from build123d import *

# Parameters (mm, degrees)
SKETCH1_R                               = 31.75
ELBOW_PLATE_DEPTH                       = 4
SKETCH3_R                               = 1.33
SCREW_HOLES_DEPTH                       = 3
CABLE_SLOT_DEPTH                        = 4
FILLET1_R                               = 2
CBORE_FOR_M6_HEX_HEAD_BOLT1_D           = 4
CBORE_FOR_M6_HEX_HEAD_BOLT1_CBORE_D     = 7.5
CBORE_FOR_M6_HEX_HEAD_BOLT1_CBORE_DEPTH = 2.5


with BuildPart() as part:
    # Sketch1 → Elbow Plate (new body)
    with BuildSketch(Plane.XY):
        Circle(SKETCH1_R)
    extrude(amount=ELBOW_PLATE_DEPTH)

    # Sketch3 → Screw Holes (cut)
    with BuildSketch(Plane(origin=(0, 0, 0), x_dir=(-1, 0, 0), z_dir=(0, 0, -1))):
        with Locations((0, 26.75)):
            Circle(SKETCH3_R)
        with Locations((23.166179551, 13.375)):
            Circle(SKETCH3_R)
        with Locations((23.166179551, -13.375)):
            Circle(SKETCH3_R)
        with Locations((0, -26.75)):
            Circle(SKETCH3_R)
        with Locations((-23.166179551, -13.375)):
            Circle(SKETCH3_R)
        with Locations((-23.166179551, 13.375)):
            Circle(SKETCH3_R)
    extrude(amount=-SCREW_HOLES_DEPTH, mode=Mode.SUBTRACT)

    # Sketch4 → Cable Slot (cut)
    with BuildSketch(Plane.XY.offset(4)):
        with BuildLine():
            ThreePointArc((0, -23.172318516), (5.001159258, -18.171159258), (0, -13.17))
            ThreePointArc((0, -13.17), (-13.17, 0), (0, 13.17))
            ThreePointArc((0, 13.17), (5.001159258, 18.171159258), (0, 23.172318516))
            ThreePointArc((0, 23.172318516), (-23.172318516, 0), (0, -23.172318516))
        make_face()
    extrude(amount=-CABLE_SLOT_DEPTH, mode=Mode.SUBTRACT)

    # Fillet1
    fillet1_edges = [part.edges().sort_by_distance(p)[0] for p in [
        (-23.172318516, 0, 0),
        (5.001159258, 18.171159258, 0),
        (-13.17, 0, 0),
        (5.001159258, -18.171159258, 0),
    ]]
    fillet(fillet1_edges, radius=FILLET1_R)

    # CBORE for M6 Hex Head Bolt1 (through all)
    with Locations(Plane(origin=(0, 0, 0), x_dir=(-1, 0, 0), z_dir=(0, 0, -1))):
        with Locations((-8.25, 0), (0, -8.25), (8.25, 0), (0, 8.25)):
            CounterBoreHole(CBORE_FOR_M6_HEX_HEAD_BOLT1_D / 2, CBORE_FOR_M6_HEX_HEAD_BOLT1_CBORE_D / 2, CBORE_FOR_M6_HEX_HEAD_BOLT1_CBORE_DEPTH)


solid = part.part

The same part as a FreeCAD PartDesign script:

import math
import FreeCAD as App
import Part
import Sketcher

V = App.Vector
Q = App.Units.Quantity


def edges_at(feature, points):
    """Names of the edges that pass closest to the given points."""
    edges = feature.Shape.Edges
    near = lambda p: min(range(len(edges)), key=lambda i: edges[i].distToShape(Part.Vertex(*p))[0])
    return sorted({f"Edge{near(p) + 1}" for p in points})

doc = App.newDocument("Part")
body = doc.addObject("PartDesign::Body", "Body")

sketch1 = doc.addObject("Sketcher::SketchObject", "Sketch")
body.addObject(sketch1)
sketch1.AttachmentSupport = (doc.XY_Plane, [""])
sketch1.MapMode = "FlatFace"
sketch1.addGeometry(Part.Circle(V(0, 0, 0), V(0, 0, 1), 32), False)
sketch1.addConstraint([
    Sketcher.Constraint("Coincident", 0, 3, -1, 1),
    Sketcher.Constraint("Diameter", 0, Q("63.5 mm")),
])
pad1 = doc.addObject("PartDesign::Pad", "Pad")
body.addObject(pad1)
pad1.Profile = sketch1
pad1.Length = 4

sketch2 = doc.addObject("Sketcher::SketchObject", "Sketch001")
body.addObject(sketch2)
sketch2.AttachmentSupport = (doc.XY_Plane, [""])
sketch2.MapMode = "FlatFace"
sketch2.addGeometry([
    Part.Circle(V(0, 26.8, 0), V(0, 0, 1), 1.3),
    Part.Circle(V(-23.2, 13.4, 0), V(0, 0, 1), 1.3),
    Part.Circle(V(-23.2, -13.4, 0), V(0, 0, 1), 1.3),
    Part.Circle(V(0, -26.8, 0), V(0, 0, 1), 1.3),
    Part.Circle(V(23.2, -13.4, 0), V(0, 0, 1), 1.3),
    Part.Circle(V(23.2, 13.4, 0), V(0, 0, 1), 1.3),
], False)
sketch2.addConstraint([
    Sketcher.Constraint("Equal", 0, 1),
    Sketcher.Constraint("Equal", 1, 2),
    Sketcher.Constraint("Equal", 2, 3),
    Sketcher.Constraint("Equal", 3, 4),
    Sketcher.Constraint("Equal", 4, 5),
    Sketcher.Constraint("Symmetric", 0, 3, 3, 3, -1, 1),
    Sketcher.Constraint("Symmetric", 1, 3, 4, 3, -1, 1),
    Sketcher.Constraint("Symmetric", 2, 3, 5, 3, -1, 1),
    Sketcher.Constraint("Symmetric", 2, 3, 4, 3, -2),
    Sketcher.Constraint("PointOnObject", 0, 3, -2),
    Sketcher.Constraint("Diameter", 0, Q("2.66 mm")),
    Sketcher.Constraint("DistanceY", 3, 3, 0, 3, Q("53.5 mm")),
    Sketcher.Constraint("DistanceY", 2, 3, 1, 3, Q("26.75 mm")),
    Sketcher.Constraint("DistanceX", 1, 3, -1, 1, Q("23.16618 mm")),
])
pocket1 = doc.addObject("PartDesign::Pocket", "Pocket")
body.addObject(pocket1)
pocket1.Profile = sketch2
pocket1.Length = 3
pocket1.Reversed = True

sketch3 = doc.addObject("Sketcher::SketchObject", "Sketch002")
body.addObject(sketch3)
sketch3.AttachmentSupport = (doc.XY_Plane, [""])
sketch3.MapMode = "FlatFace"
sketch3.AttachmentOffset = App.Placement(V(0, 0, 4), App.Rotation())
sketch3.addGeometry([
    Part.ArcOfCircle(Part.Circle(V(0, -18, 0), V(0, 0, 1), 5), math.radians(-90), math.radians(90)),
    Part.ArcOfCircle(Part.Circle(V(0, 0, 0), V(0, 0, 1), 13), math.radians(90), math.radians(270)),
    Part.ArcOfCircle(Part.Circle(V(0, 18, 0), V(0, 0, 1), 5), math.radians(-90), math.radians(90)),
    Part.ArcOfCircle(Part.Circle(V(0, 0, 0), V(0, 0, 1), 23), math.radians(90), math.radians(270)),
], False)
sketch3.addConstraint([
    Sketcher.Constraint("Tangent", 0, 2, 1, 2),
    Sketcher.Constraint("Tangent", 1, 1, 2, 1),
    Sketcher.Constraint("Tangent", 2, 2, 3, 1),
    Sketcher.Constraint("Tangent", 3, 2, 0, 1),
    Sketcher.Constraint("Coincident", 1, 3, -1, 1),
    Sketcher.Constraint("Coincident", 3, 3, -1, 1),
    Sketcher.Constraint("PointOnObject", 0, 3, -2),
    Sketcher.Constraint("PointOnObject", 2, 3, -2),
    Sketcher.Constraint("Radius", 1, Q("13.17 mm")),
    Sketcher.Constraint("Radius", 0, Q("5.001159 mm")),
])
pocket2 = doc.addObject("PartDesign::Pocket", "Pocket001")
body.addObject(pocket2)
pocket2.Profile = sketch3
pocket2.Length = 4
doc.recompute()

fillet = doc.addObject("PartDesign::Fillet", "Fillet")
body.addObject(fillet)
fillet.Base = (pocket2, edges_at(pocket2, [
    (-23.172, 0, 0),
    (5.001, 18.171, 0),
    (-13.17, 0, 0),
    (5.001, -18.171, 0),
]))
fillet.Radius = 2

sketch4 = doc.addObject("Sketcher::SketchObject", "Sketch003")
body.addObject(sketch4)
sketch4.AttachmentSupport = (doc.XY_Plane, [""])
sketch4.MapMode = "FlatFace"
sketch4.addGeometry([
    Part.Circle(V(8.2, 0, 0), V(0, 0, 1), 2),
    Part.Circle(V(0, -8.2, 0), V(0, 0, 1), 2),
    Part.Circle(V(-8.2, 0, 0), V(0, 0, 1), 2),
    Part.Circle(V(0, 8.2, 0), V(0, 0, 1), 2),
], False)
sketch4.addConstraint([
    Sketcher.Constraint("Equal", 0, 1),
    Sketcher.Constraint("Equal", 1, 2),
    Sketcher.Constraint("Equal", 2, 3),
    Sketcher.Constraint("Symmetric", 0, 3, 2, 3, -1, 1),
    Sketcher.Constraint("Symmetric", 1, 3, 3, 3, -1, 1),
    Sketcher.Constraint("PointOnObject", 0, 3, -1),
    Sketcher.Constraint("PointOnObject", 1, 3, -2),
    Sketcher.Constraint("Diameter", 0, Q("4 mm")),
    Sketcher.Constraint("DistanceX", 2, 3, 0, 3, Q("16.5 mm")),
    Sketcher.Constraint("DistanceY", 1, 3, 3, 3, Q("16.5 mm")),
])
doc.recompute()
hole = doc.addObject("PartDesign::Hole", "Hole")
body.addObject(hole)
hole.Profile = sketch4
hole.ThreadType = "None"
hole.Diameter = 4
hole.DepthType = "ThroughAll"
hole.HoleCutType = "Counterbore"
hole.HoleCutDiameter = 7.5
hole.HoleCutDepth = 2.5
hole.Reversed = True

doc.recompute()
